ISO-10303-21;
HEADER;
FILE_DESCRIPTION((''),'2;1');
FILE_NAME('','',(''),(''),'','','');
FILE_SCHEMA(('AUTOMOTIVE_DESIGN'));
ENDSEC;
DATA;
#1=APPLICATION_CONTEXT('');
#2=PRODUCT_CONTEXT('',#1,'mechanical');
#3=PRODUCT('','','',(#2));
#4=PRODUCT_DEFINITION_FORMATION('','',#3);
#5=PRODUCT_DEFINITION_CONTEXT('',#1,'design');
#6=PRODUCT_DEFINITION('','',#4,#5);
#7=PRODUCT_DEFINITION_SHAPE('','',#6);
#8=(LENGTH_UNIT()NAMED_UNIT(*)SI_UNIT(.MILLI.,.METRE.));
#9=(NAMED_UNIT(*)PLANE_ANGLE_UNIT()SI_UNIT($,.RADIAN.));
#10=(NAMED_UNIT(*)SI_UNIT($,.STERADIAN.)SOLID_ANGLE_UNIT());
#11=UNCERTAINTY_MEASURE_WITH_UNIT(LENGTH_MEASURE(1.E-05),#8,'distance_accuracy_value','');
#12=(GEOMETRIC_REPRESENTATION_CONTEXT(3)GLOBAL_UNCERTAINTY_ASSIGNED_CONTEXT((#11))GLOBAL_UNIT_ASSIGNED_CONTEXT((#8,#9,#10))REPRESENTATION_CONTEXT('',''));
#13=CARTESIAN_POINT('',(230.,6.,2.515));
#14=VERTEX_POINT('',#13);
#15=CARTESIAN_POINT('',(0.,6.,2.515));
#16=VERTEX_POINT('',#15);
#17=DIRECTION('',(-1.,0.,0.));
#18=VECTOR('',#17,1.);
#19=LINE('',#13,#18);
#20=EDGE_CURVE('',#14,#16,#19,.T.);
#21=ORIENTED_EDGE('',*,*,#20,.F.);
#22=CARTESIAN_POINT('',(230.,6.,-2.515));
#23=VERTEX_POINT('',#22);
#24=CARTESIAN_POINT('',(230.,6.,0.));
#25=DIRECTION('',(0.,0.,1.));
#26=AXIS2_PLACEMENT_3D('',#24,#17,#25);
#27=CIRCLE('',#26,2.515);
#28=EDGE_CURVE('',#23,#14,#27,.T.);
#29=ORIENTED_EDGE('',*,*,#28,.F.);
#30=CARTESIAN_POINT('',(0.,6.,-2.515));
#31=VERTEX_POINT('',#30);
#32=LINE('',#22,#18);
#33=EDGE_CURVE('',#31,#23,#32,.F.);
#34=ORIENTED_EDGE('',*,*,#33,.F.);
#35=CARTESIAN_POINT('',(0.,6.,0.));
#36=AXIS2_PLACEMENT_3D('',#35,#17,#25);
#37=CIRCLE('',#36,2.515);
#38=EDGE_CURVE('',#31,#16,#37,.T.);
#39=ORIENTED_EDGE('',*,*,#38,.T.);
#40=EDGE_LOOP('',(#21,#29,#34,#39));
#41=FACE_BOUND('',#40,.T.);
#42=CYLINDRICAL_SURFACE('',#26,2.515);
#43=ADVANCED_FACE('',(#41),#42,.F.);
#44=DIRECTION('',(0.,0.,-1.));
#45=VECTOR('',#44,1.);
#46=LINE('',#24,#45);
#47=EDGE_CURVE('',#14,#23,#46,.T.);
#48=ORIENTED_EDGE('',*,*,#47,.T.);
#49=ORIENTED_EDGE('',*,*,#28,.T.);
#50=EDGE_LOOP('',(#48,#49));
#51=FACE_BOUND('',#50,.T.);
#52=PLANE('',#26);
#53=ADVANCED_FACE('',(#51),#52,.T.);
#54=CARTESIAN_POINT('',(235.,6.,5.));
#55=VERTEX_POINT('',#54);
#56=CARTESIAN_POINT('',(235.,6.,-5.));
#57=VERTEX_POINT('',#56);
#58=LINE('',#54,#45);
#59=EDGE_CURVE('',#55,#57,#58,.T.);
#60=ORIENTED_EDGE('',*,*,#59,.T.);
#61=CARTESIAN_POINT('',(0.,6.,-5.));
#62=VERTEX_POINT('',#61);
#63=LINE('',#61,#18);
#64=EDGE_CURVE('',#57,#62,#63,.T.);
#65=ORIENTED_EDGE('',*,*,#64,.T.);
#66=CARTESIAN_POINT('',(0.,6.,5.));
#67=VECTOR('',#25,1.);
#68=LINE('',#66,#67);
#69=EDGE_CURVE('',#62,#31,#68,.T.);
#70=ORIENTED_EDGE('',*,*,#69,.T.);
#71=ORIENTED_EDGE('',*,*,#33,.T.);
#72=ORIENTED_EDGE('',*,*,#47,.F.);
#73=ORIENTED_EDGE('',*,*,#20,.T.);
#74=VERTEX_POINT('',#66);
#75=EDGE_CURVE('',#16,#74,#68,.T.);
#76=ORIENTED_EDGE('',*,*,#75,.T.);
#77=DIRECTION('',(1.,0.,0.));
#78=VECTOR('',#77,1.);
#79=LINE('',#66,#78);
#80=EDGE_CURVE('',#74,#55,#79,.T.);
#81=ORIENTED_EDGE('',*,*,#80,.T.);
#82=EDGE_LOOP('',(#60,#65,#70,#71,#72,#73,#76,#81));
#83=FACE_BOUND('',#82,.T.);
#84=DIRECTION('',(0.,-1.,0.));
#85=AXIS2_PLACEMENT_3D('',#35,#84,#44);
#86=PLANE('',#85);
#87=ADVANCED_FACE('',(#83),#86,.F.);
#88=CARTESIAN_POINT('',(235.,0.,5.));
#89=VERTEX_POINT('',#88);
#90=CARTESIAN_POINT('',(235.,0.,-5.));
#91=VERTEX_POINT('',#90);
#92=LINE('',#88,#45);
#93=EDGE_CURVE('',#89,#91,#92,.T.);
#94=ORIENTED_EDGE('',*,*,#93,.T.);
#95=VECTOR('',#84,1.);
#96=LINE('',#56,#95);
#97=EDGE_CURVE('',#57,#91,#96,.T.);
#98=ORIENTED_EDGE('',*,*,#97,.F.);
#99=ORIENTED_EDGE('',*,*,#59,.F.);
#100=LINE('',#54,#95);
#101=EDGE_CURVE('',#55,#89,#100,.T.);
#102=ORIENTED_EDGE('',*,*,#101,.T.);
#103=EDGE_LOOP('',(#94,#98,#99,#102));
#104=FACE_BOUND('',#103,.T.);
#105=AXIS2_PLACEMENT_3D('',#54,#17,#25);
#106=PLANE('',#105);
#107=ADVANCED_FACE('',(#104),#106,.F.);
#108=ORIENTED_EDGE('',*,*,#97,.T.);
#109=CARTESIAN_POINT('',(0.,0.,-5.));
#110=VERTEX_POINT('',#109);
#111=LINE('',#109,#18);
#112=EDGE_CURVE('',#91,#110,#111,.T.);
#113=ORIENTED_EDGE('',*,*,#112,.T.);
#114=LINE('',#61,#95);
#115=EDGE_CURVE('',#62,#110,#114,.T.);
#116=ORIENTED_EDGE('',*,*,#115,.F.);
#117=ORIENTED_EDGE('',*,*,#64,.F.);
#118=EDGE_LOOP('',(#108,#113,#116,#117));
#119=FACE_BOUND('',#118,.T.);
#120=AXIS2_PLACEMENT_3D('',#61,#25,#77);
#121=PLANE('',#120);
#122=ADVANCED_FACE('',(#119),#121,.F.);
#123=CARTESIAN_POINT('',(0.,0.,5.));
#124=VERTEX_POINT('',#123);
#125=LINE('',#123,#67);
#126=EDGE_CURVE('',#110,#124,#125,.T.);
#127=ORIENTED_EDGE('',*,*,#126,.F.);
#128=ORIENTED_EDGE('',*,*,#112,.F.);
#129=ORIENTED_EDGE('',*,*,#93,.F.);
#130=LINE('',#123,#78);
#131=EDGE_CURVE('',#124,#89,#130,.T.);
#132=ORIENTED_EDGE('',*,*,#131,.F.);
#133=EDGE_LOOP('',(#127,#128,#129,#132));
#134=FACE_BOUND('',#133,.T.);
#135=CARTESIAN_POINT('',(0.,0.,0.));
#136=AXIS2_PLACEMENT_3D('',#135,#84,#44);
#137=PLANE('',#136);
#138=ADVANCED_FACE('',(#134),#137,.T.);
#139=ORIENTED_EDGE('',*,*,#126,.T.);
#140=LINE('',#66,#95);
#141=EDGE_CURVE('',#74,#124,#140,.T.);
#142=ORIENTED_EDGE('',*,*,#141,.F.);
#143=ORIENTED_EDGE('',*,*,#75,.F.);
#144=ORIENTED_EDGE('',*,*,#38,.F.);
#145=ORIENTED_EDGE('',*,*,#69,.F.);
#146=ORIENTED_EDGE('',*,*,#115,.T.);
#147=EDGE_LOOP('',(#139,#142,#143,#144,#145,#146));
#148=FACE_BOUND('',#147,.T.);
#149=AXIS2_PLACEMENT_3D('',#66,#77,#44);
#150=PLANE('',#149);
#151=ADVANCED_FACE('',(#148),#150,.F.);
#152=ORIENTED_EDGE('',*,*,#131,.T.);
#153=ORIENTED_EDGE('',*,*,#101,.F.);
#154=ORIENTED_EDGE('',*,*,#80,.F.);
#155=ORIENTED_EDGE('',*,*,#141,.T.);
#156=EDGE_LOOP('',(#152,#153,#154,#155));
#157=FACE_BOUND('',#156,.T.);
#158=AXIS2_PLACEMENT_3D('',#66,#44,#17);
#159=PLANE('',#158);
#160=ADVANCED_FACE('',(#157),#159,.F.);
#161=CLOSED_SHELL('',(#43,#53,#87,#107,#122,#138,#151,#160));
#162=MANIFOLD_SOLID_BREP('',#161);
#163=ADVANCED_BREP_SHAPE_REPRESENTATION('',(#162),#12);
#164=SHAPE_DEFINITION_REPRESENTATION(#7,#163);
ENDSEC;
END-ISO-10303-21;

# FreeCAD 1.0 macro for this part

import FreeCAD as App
import Part
import Sketcher


def add_polygon(sketch, points):
    """Adds a closed chain of lines whose ends are joined by coincident constraints."""
    first, n = sketch.GeometryCount, len(points)
    for a, b in zip(points, points[1:] + points[:1]):
        sketch.addGeometry(Part.LineSegment(App.Vector(*a, 0), App.Vector(*b, 0)), False)
    for i in range(n):
        sketch.addConstraint(Sketcher.Constraint("Coincident", first + i, 2, first + (i + 1) % n, 1))

doc = App.newDocument("Part")
body = doc.addObject("PartDesign::Body", "Body")

# Sketch on XZ plane
sketch1 = body.newObject("Sketcher::SketchObject", "Sketch")
sketch1.AttachmentSupport = (doc.getObject("XZ_Plane"), [""])
sketch1.MapMode = "FlatFace"
add_polygon(sketch1, [(0, -5), (0, 5), (235, 5), (235, -5)])  # lines 0-3
sketch1.addConstraint(Sketcher.Constraint("Vertical", 0))
sketch1.addConstraint(Sketcher.Constraint("Horizontal", 1))
sketch1.addConstraint(Sketcher.Constraint("Vertical", 2))
sketch1.addConstraint(Sketcher.Constraint("Horizontal", 3))
sketch1.addConstraint(Sketcher.Constraint("Symmetric", 0, 2, 3, 2, -1, 1))
sketch1.addConstraint(Sketcher.Constraint("DistanceX", 1, 1, 1, 2, 235.0))
sketch1.addConstraint(Sketcher.Constraint("DistanceY", 0, 1, 0, 2, 10.0))
pad1 = body.newObject("PartDesign::Pad", "Pad")
pad1.Profile = sketch1
pad1.Length = 6
pad1.Reversed = True

# Sketch on YZ plane
sketch2 = body.newObject("Sketcher::SketchObject", "Sketch001")
sketch2.AttachmentSupport = (doc.getObject("YZ_Plane"), [""])
sketch2.MapMode = "FlatFace"
sketch2.addGeometry(Part.Circle(App.Vector(6, 0, 0), App.Vector(0, 0, 1), 2.515), False)
sketch2.addConstraint(Sketcher.Constraint("PointOnObject", 0, 3, -1))
sketch2.addConstraint(Sketcher.Constraint("Diameter", 0, 5.03))
sketch2.addConstraint(Sketcher.Constraint("DistanceX", -1, 1, 0, 3, 6.0))
pocket1 = body.newObject("PartDesign::Pocket", "Pocket")
pocket1.Profile = sketch2
pocket1.Length = 230
pocket1.Reversed = True

doc.recompute()
